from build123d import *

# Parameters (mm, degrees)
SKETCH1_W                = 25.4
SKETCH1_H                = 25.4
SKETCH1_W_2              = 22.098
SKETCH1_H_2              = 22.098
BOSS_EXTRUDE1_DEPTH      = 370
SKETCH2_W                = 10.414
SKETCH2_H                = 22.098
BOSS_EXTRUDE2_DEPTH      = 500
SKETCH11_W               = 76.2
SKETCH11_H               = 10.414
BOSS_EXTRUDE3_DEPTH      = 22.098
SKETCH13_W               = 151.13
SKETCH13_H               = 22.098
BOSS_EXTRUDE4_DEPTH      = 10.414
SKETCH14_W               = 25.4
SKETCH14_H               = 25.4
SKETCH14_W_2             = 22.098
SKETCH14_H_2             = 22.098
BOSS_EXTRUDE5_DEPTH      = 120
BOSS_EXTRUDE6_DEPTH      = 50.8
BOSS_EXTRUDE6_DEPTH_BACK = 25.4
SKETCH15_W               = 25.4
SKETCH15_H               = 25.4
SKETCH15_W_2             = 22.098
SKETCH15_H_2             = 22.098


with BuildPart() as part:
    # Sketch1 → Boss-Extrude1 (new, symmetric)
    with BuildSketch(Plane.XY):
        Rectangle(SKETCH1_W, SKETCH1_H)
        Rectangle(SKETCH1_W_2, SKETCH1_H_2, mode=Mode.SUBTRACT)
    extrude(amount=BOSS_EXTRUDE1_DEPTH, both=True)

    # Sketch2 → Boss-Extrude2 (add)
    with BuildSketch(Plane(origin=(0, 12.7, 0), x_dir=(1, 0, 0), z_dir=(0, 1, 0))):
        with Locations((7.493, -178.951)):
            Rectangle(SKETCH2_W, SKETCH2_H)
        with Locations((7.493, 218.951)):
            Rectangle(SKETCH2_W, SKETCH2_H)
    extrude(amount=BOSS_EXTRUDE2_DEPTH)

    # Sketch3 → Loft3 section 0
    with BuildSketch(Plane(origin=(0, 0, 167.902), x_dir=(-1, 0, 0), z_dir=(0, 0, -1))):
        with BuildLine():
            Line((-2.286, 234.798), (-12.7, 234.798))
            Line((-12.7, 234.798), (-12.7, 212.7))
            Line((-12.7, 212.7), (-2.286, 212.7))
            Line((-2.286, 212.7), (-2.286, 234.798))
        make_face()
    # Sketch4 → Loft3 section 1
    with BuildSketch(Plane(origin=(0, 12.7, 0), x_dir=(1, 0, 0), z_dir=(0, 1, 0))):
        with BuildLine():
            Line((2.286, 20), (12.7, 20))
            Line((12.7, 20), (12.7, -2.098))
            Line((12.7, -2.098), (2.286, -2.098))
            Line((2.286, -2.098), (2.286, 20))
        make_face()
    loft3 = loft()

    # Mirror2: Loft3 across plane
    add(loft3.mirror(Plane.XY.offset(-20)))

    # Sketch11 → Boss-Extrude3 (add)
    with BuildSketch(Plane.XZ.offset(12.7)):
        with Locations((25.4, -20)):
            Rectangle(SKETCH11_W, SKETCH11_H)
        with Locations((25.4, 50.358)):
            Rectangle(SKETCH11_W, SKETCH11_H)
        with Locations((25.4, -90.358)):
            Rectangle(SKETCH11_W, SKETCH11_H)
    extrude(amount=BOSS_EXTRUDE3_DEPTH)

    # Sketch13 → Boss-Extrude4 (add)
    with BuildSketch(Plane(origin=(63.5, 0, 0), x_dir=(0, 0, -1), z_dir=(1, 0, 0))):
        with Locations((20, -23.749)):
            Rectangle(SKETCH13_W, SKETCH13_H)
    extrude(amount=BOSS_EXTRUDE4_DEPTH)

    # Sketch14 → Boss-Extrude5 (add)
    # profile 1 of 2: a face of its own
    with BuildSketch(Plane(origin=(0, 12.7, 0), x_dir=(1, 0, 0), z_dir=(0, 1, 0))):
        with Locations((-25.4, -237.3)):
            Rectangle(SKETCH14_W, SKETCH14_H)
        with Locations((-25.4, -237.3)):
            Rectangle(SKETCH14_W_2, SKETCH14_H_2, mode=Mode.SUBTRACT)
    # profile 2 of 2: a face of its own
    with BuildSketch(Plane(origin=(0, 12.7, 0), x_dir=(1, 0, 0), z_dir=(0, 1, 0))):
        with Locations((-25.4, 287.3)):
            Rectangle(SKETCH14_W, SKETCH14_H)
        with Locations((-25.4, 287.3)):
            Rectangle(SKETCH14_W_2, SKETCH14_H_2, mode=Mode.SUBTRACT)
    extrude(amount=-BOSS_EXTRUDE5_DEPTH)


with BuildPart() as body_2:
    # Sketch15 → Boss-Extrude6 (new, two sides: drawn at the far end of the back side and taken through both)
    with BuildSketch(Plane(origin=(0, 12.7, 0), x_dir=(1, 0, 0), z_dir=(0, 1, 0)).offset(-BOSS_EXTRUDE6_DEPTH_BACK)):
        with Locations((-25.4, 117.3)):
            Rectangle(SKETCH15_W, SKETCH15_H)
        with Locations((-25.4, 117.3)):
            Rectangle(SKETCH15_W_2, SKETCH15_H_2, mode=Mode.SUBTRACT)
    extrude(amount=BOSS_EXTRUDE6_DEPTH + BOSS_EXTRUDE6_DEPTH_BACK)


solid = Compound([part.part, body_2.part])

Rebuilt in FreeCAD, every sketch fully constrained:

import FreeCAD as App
import Part
import Sketcher
from FreeCAD import Vector
Q = App.Units.Quantity

doc = App.newDocument("Part")
body = doc.addObject("PartDesign::Body", "Body")

sketch1 = body.newObject("Sketcher::SketchObject", "Sketch")
sketch1.AttachmentSupport = (doc.getObject("XY_Plane"), [""])
sketch1.MapMode = "FlatFace"
sketch1.addGeometry(Part.LineSegment(Vector(-13, 13, 0), Vector(-13, -13, 0)), False)
sketch1.addGeometry(Part.LineSegment(Vector(-13, -13, 0), Vector(13, -13, 0)), False)
sketch1.addGeometry(Part.LineSegment(Vector(13, -13, 0), Vector(13, 13, 0)), False)
sketch1.addGeometry(Part.LineSegment(Vector(13, 13, 0), Vector(-13, 13, 0)), False)
sketch1.addGeometry(Part.LineSegment(Vector(11, -11, 0), Vector(-11, -11, 0)), False)
sketch1.addGeometry(Part.LineSegment(Vector(-11, -11, 0), Vector(-11, 11, 0)), False)
sketch1.addGeometry(Part.LineSegment(Vector(-11, 11, 0), Vector(11, 11, 0)), False)
sketch1.addGeometry(Part.LineSegment(Vector(11, 11, 0), Vector(11, -11, 0)), False)
sketch1.addConstraint(Sketcher.Constraint("Coincident", 0, 2, 1, 1))
sketch1.addConstraint(Sketcher.Constraint("Coincident", 1, 2, 2, 1))
sketch1.addConstraint(Sketcher.Constraint("Coincident", 2, 2, 3, 1))
sketch1.addConstraint(Sketcher.Constraint("Coincident", 3, 2, 0, 1))
sketch1.addConstraint(Sketcher.Constraint("Coincident", 4, 2, 5, 1))
sketch1.addConstraint(Sketcher.Constraint("Coincident", 5, 2, 6, 1))
sketch1.addConstraint(Sketcher.Constraint("Coincident", 6, 2, 7, 1))
sketch1.addConstraint(Sketcher.Constraint("Coincident", 7, 2, 4, 1))
sketch1.addConstraint(Sketcher.Constraint("Vertical", 0))
sketch1.addConstraint(Sketcher.Constraint("Horizontal", 1))
sketch1.addConstraint(Sketcher.Constraint("Vertical", 2))
sketch1.addConstraint(Sketcher.Constraint("Horizontal", 3))
sketch1.addConstraint(Sketcher.Constraint("Horizontal", 4))
sketch1.addConstraint(Sketcher.Constraint("Vertical", 5))
sketch1.addConstraint(Sketcher.Constraint("Horizontal", 6))
sketch1.addConstraint(Sketcher.Constraint("Vertical", 7))
sketch1.addConstraint(Sketcher.Constraint("Symmetric", 0, 2, 2, 2, -1, 1))
sketch1.addConstraint(Sketcher.Constraint("Symmetric", 4, 2, 6, 2, -1, 1))
sketch1.addConstraint(Sketcher.Constraint("Equal", 3, 0))
sketch1.addConstraint(Sketcher.Constraint("Equal", 6, 5))
sketch1.addConstraint(Sketcher.Constraint("DistanceX", 1, 1, 1, 2, Q("1 in")))
sketch1.addConstraint(Sketcher.Constraint("DistanceX", 4, 2, 4, 1, Q("0.87 in")))
pad1 = body.newObject("PartDesign::Pad", "Pad")
pad1.Profile = sketch1
pad1.Length = 740
pad1.Midplane = True

sketch2 = body.newObject("Sketcher::SketchObject", "Sketch001")
sketch2.AttachmentSupport = (doc.getObject("XZ_Plane"), [""])
sketch2.MapMode = "FlatFace"
sketch2.AttachmentOffset = App.Placement(Vector(0, 0, -0.5 * 25.4), App.Rotation())
sketch2.addGeometry(Part.LineSegment(Vector(2, 168, 0), Vector(2, 190, 0)), False)
sketch2.addGeometry(Part.LineSegment(Vector(2, 190, 0), Vector(13, 190, 0)), False)
sketch2.addGeometry(Part.LineSegment(Vector(13, 190, 0), Vector(13, 168, 0)), False)
sketch2.addGeometry(Part.LineSegment(Vector(13, 168, 0), Vector(2, 168, 0)), False)
sketch2.addGeometry(Part.LineSegment(Vector(2, -230, 0), Vector(2, -208, 0)), False)
sketch2.addGeometry(Part.LineSegment(Vector(2, -208, 0), Vector(13, -208, 0)), False)
sketch2.addGeometry(Part.LineSegment(Vector(13, -208, 0), Vector(13, -230, 0)), False)
sketch2.addGeometry(Part.LineSegment(Vector(13, -230, 0), Vector(2, -230, 0)), False)
sketch2.addConstraint(Sketcher.Constraint("Coincident", 0, 2, 1, 1))
sketch2.addConstraint(Sketcher.Constraint("Coincident", 1, 2, 2, 1))
sketch2.addConstraint(Sketcher.Constraint("Coincident", 2, 2, 3, 1))
sketch2.addConstraint(Sketcher.Constraint("Coincident", 3, 2, 0, 1))
sketch2.addConstraint(Sketcher.Constraint("Coincident", 4, 2, 5, 1))
sketch2.addConstraint(Sketcher.Constraint("Coincident", 5, 2, 6, 1))
sketch2.addConstraint(Sketcher.Constraint("Coincident", 6, 2, 7, 1))
sketch2.addConstraint(Sketcher.Constraint("Coincident", 7, 2, 4, 1))
sketch2.addConstraint(Sketcher.Constraint("Vertical", 0))
sketch2.addConstraint(Sketcher.Constraint("Horizontal", 1))
sketch2.addConstraint(Sketcher.Constraint("Vertical", 2))
sketch2.addConstraint(Sketcher.Constraint("Horizontal", 3))
sketch2.addConstraint(Sketcher.Constraint("Vertical", 4))
sketch2.addConstraint(Sketcher.Constraint("Horizontal", 5))
sketch2.addConstraint(Sketcher.Constraint("Vertical", 6))
sketch2.addConstraint(Sketcher.Constraint("Horizontal", 7))
sketch2.addConstraint(Sketcher.Constraint("Vertical", 3, 2, 4, 2))
sketch2.addConstraint(Sketcher.Constraint("Vertical", 2, 2, 5, 2))
sketch2.addConstraint(Sketcher.Constraint("Equal", 2, 4))
sketch2.addConstraint(Sketcher.Constraint("DistanceX", 1, 1, 1, 2, Q("0.41 in")))
sketch2.addConstraint(Sketcher.Constraint("DistanceY", 0, 1, 0, 2, Q("0.87 in")))
sketch2.addConstraint(Sketcher.Constraint("DistanceX", -1, 1, 1, 2, Q("0.5 in")))
sketch2.addConstraint(Sketcher.Constraint("DistanceY", -1, 1, 0, 2, 190.0))
sketch2.addConstraint(Sketcher.Constraint("DistanceY", 4, 2, -1, 1, 207.902))
pad2 = body.newObject("PartDesign::Pad", "Pad001")
pad2.Profile = sketch2
pad2.Length = 500
pad2.Reversed = True

sketch3 = body.newObject("Sketcher::SketchObject", "Sketch002")
sketch3.AttachmentSupport = (doc.getObject("XY_Plane"), [""])
sketch3.MapMode = "FlatFace"
sketch3.AttachmentOffset = App.Placement(Vector(0, 0, 167.902), App.Rotation())
sketch3.addGeometry(Part.LineSegment(Vector(2, 235, 0), Vector(13, 235, 0)), False)
sketch3.addGeometry(Part.LineSegment(Vector(13, 235, 0), Vector(13, 213, 0)), False)
sketch3.addGeometry(Part.LineSegment(Vector(13, 213, 0), Vector(2, 213, 0)), False)
sketch3.addGeometry(Part.LineSegment(Vector(2, 213, 0), Vector(2, 235, 0)), False)
sketch3.addConstraint(Sketcher.Constraint("Coincident", 0, 2, 1, 1))
sketch3.addConstraint(Sketcher.Constraint("Coincident", 1, 2, 2, 1))
sketch3.addConstraint(Sketcher.Constraint("Coincident", 2, 2, 3, 1))
sketch3.addConstraint(Sketcher.Constraint("Coincident", 3, 2, 0, 1))
sketch3.addConstraint(Sketcher.Constraint("Horizontal", 0))
sketch3.addConstraint(Sketcher.Constraint("Vertical", 1))
sketch3.addConstraint(Sketcher.Constraint("Horizontal", 2))
sketch3.addConstraint(Sketcher.Constraint("Vertical", 3))
sketch3.addConstraint(Sketcher.Constraint("DistanceX", 0, 1, 0, 2, Q("0.41 in")))
sketch3.addConstraint(Sketcher.Constraint("DistanceY", 1, 2, 1, 1, Q("0.87 in")))
sketch3.addConstraint(Sketcher.Constraint("DistanceX", -1, 1, 0, 2, Q("0.5 in")))
sketch3.addConstraint(Sketcher.Constraint("DistanceY", -1, 1, 0, 2, 234.798))

sketch4 = body.newObject("Sketcher::SketchObject", "Sketch003")
sketch4.AttachmentSupport = (doc.getObject("XZ_Plane"), [""])
sketch4.MapMode = "FlatFace"
sketch4.AttachmentOffset = App.Placement(Vector(0, 0, -0.5 * 25.4), App.Rotation())
sketch4.addGeometry(Part.LineSegment(Vector(13, -20, 0), Vector(2, -20, 0)), False)
sketch4.addGeometry(Part.LineSegment(Vector(2, -20, 0), Vector(2, 2, 0)), False)
sketch4.addGeometry(Part.LineSegment(Vector(2, 2, 0), Vector(13, 2, 0)), False)
sketch4.addGeometry(Part.LineSegment(Vector(13, 2, 0), Vector(13, -20, 0)), False)
sketch4.addConstraint(Sketcher.Constraint("Coincident", 0, 2, 1, 1))
sketch4.addConstraint(Sketcher.Constraint("Coincident", 1, 2, 2, 1))
sketch4.addConstraint(Sketcher.Constraint("Coincident", 2, 2, 3, 1))
sketch4.addConstraint(Sketcher.Constraint("Coincident", 3, 2, 0, 1))
sketch4.addConstraint(Sketcher.Constraint("Horizontal", 0))
sketch4.addConstraint(Sketcher.Constraint("Vertical", 1))
sketch4.addConstraint(Sketcher.Constraint("Horizontal", 2))
sketch4.addConstraint(Sketcher.Constraint("Vertical", 3))
sketch4.addConstraint(Sketcher.Constraint("DistanceX", 0, 2, 0, 1, Q("0.41 in")))
sketch4.addConstraint(Sketcher.Constraint("DistanceY", 1, 1, 1, 2, Q("0.87 in")))
sketch4.addConstraint(Sketcher.Constraint("DistanceX", -1, 1, 2, 2, Q("0.5 in")))
sketch4.addConstraint(Sketcher.Constraint("DistanceY", 0, 2, -1, 1, 20.0))

additiveloft = body.newObject("PartDesign::AdditiveLoft", "AdditiveLoft")
additiveloft.Profile = sketch3
additiveloft.Sections = [sketch4]
doc.recompute()

datumplane = body.newObject("PartDesign::Plane", "DatumPlane")
datumplane.AttachmentSupport = (doc.getObject("XY_Plane"), [""])
datumplane.MapMode = "FlatFace"
datumplane.AttachmentOffset = App.Placement(Vector(0, 0, -20), App.Rotation())
mirrored = body.newObject("PartDesign::Mirrored", "Mirrored")
mirrored.Originals = [additiveloft]
mirrored.MirrorPlane = (datumplane, [""])
body.Tip = mirrored

sketch5 = body.newObject("Sketcher::SketchObject", "Sketch004")
sketch5.AttachmentSupport = (doc.getObject("XZ_Plane"), [""])
sketch5.MapMode = "FlatFace"
sketch5.AttachmentOffset = App.Placement(Vector(0, 0, 0.5 * 25.4), App.Rotation())
sketch5.addGeometry(Part.LineSegment(Vector(-13, -15, 0), Vector(-13, -25, 0)), False)
sketch5.addGeometry(Part.LineSegment(Vector(-13, -25, 0), Vector(64, -25, 0)), False)
sketch5.addGeometry(Part.LineSegment(Vector(64, -25, 0), Vector(64, -15, 0)), False)
sketch5.addGeometry(Part.LineSegment(Vector(64, -15, 0), Vector(-13, -15, 0)), False)
sketch5.addGeometry(Part.LineSegment(Vector(-13, 56, 0), Vector(-13, 45, 0)), False)
sketch5.addGeometry(Part.LineSegment(Vector(-13, 45, 0), Vector(64, 45, 0)), False)
sketch5.addGeometry(Part.LineSegment(Vector(64, 45, 0), Vector(64, 56, 0)), False)
sketch5.addGeometry(Part.LineSegment(Vector(64, 56, 0), Vector(-13, 56, 0)), False)
sketch5.addGeometry(Part.LineSegment(Vector(-13, -85, 0), Vector(-13, -96, 0)), False)
sketch5.addGeometry(Part.LineSegment(Vector(-13, -96, 0), Vector(64, -96, 0)), False)
sketch5.addGeometry(Part.LineSegment(Vector(64, -96, 0), Vector(64, -85, 0)), False)
sketch5.addGeometry(Part.LineSegment(Vector(64, -85, 0), Vector(-13, -85, 0)), False)
sketch5.addConstraint(Sketcher.Constraint("Coincident", 0, 2, 1, 1))
sketch5.addConstraint(Sketcher.Constraint("Coincident", 1, 2, 2, 1))
sketch5.addConstraint(Sketcher.Constraint("Coincident", 2, 2, 3, 1))
sketch5.addConstraint(Sketcher.Constraint("Coincident", 3, 2, 0, 1))
sketch5.addConstraint(Sketcher.Constraint("Coincident", 4, 2, 5, 1))
sketch5.addConstraint(Sketcher.Constraint("Coincident", 5, 2, 6, 1))
sketch5.addConstraint(Sketcher.Constraint("Coincident", 6, 2, 7, 1))
sketch5.addConstraint(Sketcher.Constraint("Coincident", 7, 2, 4, 1))
sketch5.addConstraint(Sketcher.Constraint("Coincident", 8, 2, 9, 1))
sketch5.addConstraint(Sketcher.Constraint("Coincident", 9, 2, 10, 1))
sketch5.addConstraint(Sketcher.Constraint("Coincident", 10, 2, 11, 1))
sketch5.addConstraint(Sketcher.Constraint("Coincident", 11, 2, 8, 1))
sketch5.addConstraint(Sketcher.Constraint("Vertical", 0))
sketch5.addConstraint(Sketcher.Constraint("Horizontal", 1))
sketch5.addConstraint(Sketcher.Constraint("Vertical", 2))
sketch5.addConstraint(Sketcher.Constraint("Horizontal", 3))
sketch5.addConstraint(Sketcher.Constraint("Vertical", 4))
sketch5.addConstraint(Sketcher.Constraint("Horizontal", 5))
sketch5.addConstraint(Sketcher.Constraint("Vertical", 6))
sketch5.addConstraint(Sketcher.Constraint("Horizontal", 7))
sketch5.addConstraint(Sketcher.Constraint("Vertical", 8))
sketch5.addConstraint(Sketcher.Constraint("Horizontal", 9))
sketch5.addConstraint(Sketcher.Constraint("Vertical", 10))
sketch5.addConstraint(Sketcher.Constraint("Horizontal", 11))
sketch5.addConstraint(Sketcher.Constraint("Vertical", 3, 2, 4, 2))
sketch5.addConstraint(Sketcher.Constraint("Vertical", 2, 2, 5, 2))
sketch5.addConstraint(Sketcher.Constraint("Vertical", 7, 2, 8, 2))
sketch5.addConstraint(Sketcher.Constraint("Vertical", 6, 2, 9, 2))
sketch5.addConstraint(Sketcher.Constraint("Equal", 2, 4))
sketch5.addConstraint(Sketcher.Constraint("Equal", 6, 8))
sketch5.addConstraint(Sketcher.Constraint("DistanceX", 1, 1, 1, 2, Q("3 in")))
sketch5.addConstraint(Sketcher.Constraint("DistanceY", 0, 2, 0, 1, Q("0.41 in")))
sketch5.addConstraint(Sketcher.Constraint("DistanceX", 0, 2, -1, 1, Q("0.5 in")))
sketch5.addConstraint(Sketcher.Constraint("DistanceY", 3, 2, 4, 2, Q("2.36 in")))
sketch5.addConstraint(Sketcher.Constraint("DistanceY", 8, 2, 0, 2, Q("2.77 in")))
sketch5.addConstraint(Sketcher.Constraint("DistanceY", 0, 2, -1, 1, 25.207))
pad3 = body.newObject("PartDesign::Pad", "Pad002")
pad3.Profile = sketch5
pad3.Length = Q("0.87 in")

sketch6 = body.newObject("Sketcher::SketchObject", "Sketch005")
sketch6.AttachmentSupport = (doc.getObject("YZ_Plane"), [""])
sketch6.MapMode = "FlatFace"
sketch6.AttachmentOffset = App.Placement(Vector(0, 0, 2.5 * 25.4), App.Rotation())
sketch6.addGeometry(Part.LineSegment(Vector(-13, 56, 0), Vector(-35, 56, 0)), False)
sketch6.addGeometry(Part.LineSegment(Vector(-35, 56, 0), Vector(-35, -96, 0)), False)
sketch6.addGeometry(Part.LineSegment(Vector(-35, -96, 0), Vector(-13, -96, 0)), False)
sketch6.addGeometry(Part.LineSegment(Vector(-13, -96, 0), Vector(-13, 56, 0)), False)
sketch6.addConstraint(Sketcher.Constraint("Coincident", 0, 2, 1, 1))
sketch6.addConstraint(Sketcher.Constraint("Coincident", 1, 2, 2, 1))
sketch6.addConstraint(Sketcher.Constraint("Coincident", 2, 2, 3, 1))
sketch6.addConstraint(Sketcher.Constraint("Coincident", 3, 2, 0, 1))
sketch6.addConstraint(Sketcher.Constraint("Horizontal", 0))
sketch6.addConstraint(Sketcher.Constraint("Vertical", 1))
sketch6.addConstraint(Sketcher.Constraint("Horizontal", 2))
sketch6.addConstraint(Sketcher.Constraint("Vertical", 3))
sketch6.addConstraint(Sketcher.Constraint("DistanceX", 0, 2, 0, 1, Q("0.87 in")))
sketch6.addConstraint(Sketcher.Constraint("DistanceY", 1, 2, 1, 1, Q("5.95 in")))
sketch6.addConstraint(Sketcher.Constraint("DistanceX", 2, 2, -1, 1, Q("0.5 in")))
sketch6.addConstraint(Sketcher.Constraint("DistanceY", -1, 1, 0, 2, 55.565))
pad4 = body.newObject("PartDesign::Pad", "Pad003")
pad4.Profile = sketch6
pad4.Length = Q("0.41 in")

sketch7 = body.newObject("Sketcher::SketchObject", "Sketch006")
sketch7.AttachmentSupport = (doc.getObject("XZ_Plane"), [""])
sketch7.MapMode = "FlatFace"
sketch7.AttachmentOffset = App.Placement(Vector(0, 0, -0.5 * 25.4), App.Rotation())
sketch7.addGeometry(Part.LineSegment(Vector(-38, 225, 0), Vector(-38, 250, 0)), False)
sketch7.addGeometry(Part.LineSegment(Vector(-38, 250, 0), Vector(-13, 250, 0)), False)
sketch7.addGeometry(Part.LineSegment(Vector(-13, 250, 0), Vector(-13, 225, 0)), False)
sketch7.addGeometry(Part.LineSegment(Vector(-13, 225, 0), Vector(-38, 225, 0)), False)
sketch7.addGeometry(Part.LineSegment(Vector(-14, 248, 0), Vector(-36, 248, 0)), False)
sketch7.addGeometry(Part.LineSegment(Vector(-36, 248, 0), Vector(-36, 226, 0)), False)
sketch7.addGeometry(Part.LineSegment(Vector(-36, 226, 0), Vector(-14, 226, 0)), False)
sketch7.addGeometry(Part.LineSegment(Vector(-14, 226, 0), Vector(-14, 248, 0)), False)
sketch7.addGeometry(Part.LineSegment(Vector(-38, -300, 0), Vector(-38, -275, 0)), False)
sketch7.addGeometry(Part.LineSegment(Vector(-38, -275, 0), Vector(-13, -275, 0)), False)
sketch7.addGeometry(Part.LineSegment(Vector(-13, -275, 0), Vector(-13, -300, 0)), False)
sketch7.addGeometry(Part.LineSegment(Vector(-13, -300, 0), Vector(-38, -300, 0)), False)
sketch7.addGeometry(Part.LineSegment(Vector(-14, -276, 0), Vector(-36, -276, 0)), False)
sketch7.addGeometry(Part.LineSegment(Vector(-36, -276, 0), Vector(-36, -298, 0)), False)
sketch7.addGeometry(Part.LineSegment(Vector(-36, -298, 0), Vector(-14, -298, 0)), False)
sketch7.addGeometry(Part.LineSegment(Vector(-14, -298, 0), Vector(-14, -276, 0)), False)
sketch7.addConstraint(Sketcher.Constraint("Coincident", 0, 2, 1, 1))
sketch7.addConstraint(Sketcher.Constraint("Coincident", 1, 2, 2, 1))
sketch7.addConstraint(Sketcher.Constraint("Coincident", 2, 2, 3, 1))
sketch7.addConstraint(Sketcher.Constraint("Coincident", 3, 2, 0, 1))
sketch7.addConstraint(Sketcher.Constraint("Coincident", 4, 2, 5, 1))
sketch7.addConstraint(Sketcher.Constraint("Coincident", 5, 2, 6, 1))
sketch7.addConstraint(Sketcher.Constraint("Coincident", 6, 2, 7, 1))
sketch7.addConstraint(Sketcher.Constraint("Coincident", 7, 2, 4, 1))
sketch7.addConstraint(Sketcher.Constraint("Coincident", 8, 2, 9, 1))
sketch7.addConstraint(Sketcher.Constraint("Coincident", 9, 2, 10, 1))
sketch7.addConstraint(Sketcher.Constraint("Coincident", 10, 2, 11, 1))
sketch7.addConstraint(Sketcher.Constraint("Coincident", 11, 2, 8, 1))
sketch7.addConstraint(Sketcher.Constraint("Coincident", 12, 2, 13, 1))
sketch7.addConstraint(Sketcher.Constraint("Coincident", 13, 2, 14, 1))
sketch7.addConstraint(Sketcher.Constraint("Coincident", 14, 2, 15, 1))
sketch7.addConstraint(Sketcher.Constraint("Coincident", 15, 2, 12, 1))
sketch7.addConstraint(Sketcher.Constraint("Vertical", 0))
sketch7.addConstraint(Sketcher.Constraint("Horizontal", 1))
sketch7.addConstraint(Sketcher.Constraint("Vertical", 2))
sketch7.addConstraint(Sketcher.Constraint("Horizontal", 3))
sketch7.addConstraint(Sketcher.Constraint("Horizontal", 4))
sketch7.addConstraint(Sketcher.Constraint("Vertical", 5))
sketch7.addConstraint(Sketcher.Constraint("Horizontal", 6))
sketch7.addConstraint(Sketcher.Constraint("Vertical", 7))
sketch7.addConstraint(Sketcher.Constraint("Vertical", 8))
sketch7.addConstraint(Sketcher.Constraint("Horizontal", 9))
sketch7.addConstraint(Sketcher.Constraint("Vertical", 10))
sketch7.addConstraint(Sketcher.Constraint("Horizontal", 11))
sketch7.addConstraint(Sketcher.Constraint("Horizontal", 12))
sketch7.addConstraint(Sketcher.Constraint("Vertical", 13))
sketch7.addConstraint(Sketcher.Constraint("Horizontal", 14))
sketch7.addConstraint(Sketcher.Constraint("Vertical", 15))
sketch7.addConstraint(Sketcher.Constraint("Vertical", 3, 2, 8, 2))
sketch7.addConstraint(Sketcher.Constraint("Vertical", 2, 2, 9, 2))
sketch7.addConstraint(Sketcher.Constraint("Vertical", 5, 2, 12, 2))
sketch7.addConstraint(Sketcher.Constraint("Vertical", 7, 2, 14, 2))
sketch7.addConstraint(Sketcher.Constraint("Equal", 11, 0))
sketch7.addConstraint(Sketcher.Constraint("Equal", 14, 5))
sketch7.addConstraint(Sketcher.Constraint("Equal", 2, 8))
sketch7.addConstraint(Sketcher.Constraint("Equal", 7, 13))
sketch7.addConstraint(Sketcher.Constraint("DistanceX", 1, 1, 1, 2, Q("1 in")))
sketch7.addConstraint(Sketcher.Constraint("DistanceX", 4, 2, 4, 1, Q("0.87 in")))
sketch7.addConstraint(Sketcher.Constraint("DistanceX", 0, 2, -1, 1, Q("1.5 in")))
sketch7.addConstraint(Sketcher.Constraint("DistanceX", 4, 2, -1, 1, Q("1.435 in")))
sketch7.addConstraint(Sketcher.Constraint("DistanceY", 4, 2, 0, 2, Q("0.065 in")))
sketch7.addConstraint(Sketcher.Constraint("DistanceY", 12, 2, 8, 2, Q("0.065 in")))
sketch7.addConstraint(Sketcher.Constraint("DistanceY", -1, 1, 0, 2, 250.0))
sketch7.addConstraint(Sketcher.Constraint("DistanceY", 8, 2, -1, 1, 274.6))
pad5 = body.newObject("PartDesign::Pad", "Pad004")
pad5.Profile = sketch7
pad5.Length = 120
body2 = doc.addObject("PartDesign::Body", "Body001")

sketch8 = body2.newObject("Sketcher::SketchObject", "Sketch007")
sketch8.AttachmentSupport = (doc.getObject("XZ_Plane001"), [""])
sketch8.MapMode = "FlatFace"
sketch8.AttachmentOffset = App.Placement(Vector(0, 0, -0.5 * 25.4), App.Rotation())
sketch8.addGeometry(Part.LineSegment(Vector(-38, -130, 0), Vector(-38, -105, 0)), False)
sketch8.addGeometry(Part.LineSegment(Vector(-38, -105, 0), Vector(-13, -105, 0)), False)
sketch8.addGeometry(Part.LineSegment(Vector(-13, -105, 0), Vector(-13, -130, 0)), False)
sketch8.addGeometry(Part.LineSegment(Vector(-13, -130, 0), Vector(-38, -130, 0)), False)
sketch8.addGeometry(Part.LineSegment(Vector(-14, -106, 0), Vector(-36, -106, 0)), False)
sketch8.addGeometry(Part.LineSegment(Vector(-36, -106, 0), Vector(-36, -128, 0)), False)
sketch8.addGeometry(Part.LineSegment(Vector(-36, -128, 0), Vector(-14, -128, 0)), False)
sketch8.addGeometry(Part.LineSegment(Vector(-14, -128, 0), Vector(-14, -106, 0)), False)
sketch8.addConstraint(Sketcher.Constraint("Coincident", 0, 2, 1, 1))
sketch8.addConstraint(Sketcher.Constraint("Coincident", 1, 2, 2, 1))
sketch8.addConstraint(Sketcher.Constraint("Coincident", 2, 2, 3, 1))
sketch8.addConstraint(Sketcher.Constraint("Coincident", 3, 2, 0, 1))
sketch8.addConstraint(Sketcher.Constraint("Coincident", 4, 2, 5, 1))
sketch8.addConstraint(Sketcher.Constraint("Coincident", 5, 2, 6, 1))
sketch8.addConstraint(Sketcher.Constraint("Coincident", 6, 2, 7, 1))
sketch8.addConstraint(Sketcher.Constraint("Coincident", 7, 2, 4, 1))
sketch8.addConstraint(Sketcher.Constraint("Vertical", 0))
sketch8.addConstraint(Sketcher.Constraint("Horizontal", 1))
sketch8.addConstraint(Sketcher.Constraint("Vertical", 2))
sketch8.addConstraint(Sketcher.Constraint("Horizontal", 3))
sketch8.addConstraint(Sketcher.Constraint("Horizontal", 4))
sketch8.addConstraint(Sketcher.Constraint("Vertical", 5))
sketch8.addConstraint(Sketcher.Constraint("Horizontal", 6))
sketch8.addConstraint(Sketcher.Constraint("Vertical", 7))
sketch8.addConstraint(Sketcher.Constraint("Equal", 3, 0))
sketch8.addConstraint(Sketcher.Constraint("Equal", 6, 5))
sketch8.addConstraint(Sketcher.Constraint("DistanceX", 1, 1, 1, 2, Q("1 in")))
sketch8.addConstraint(Sketcher.Constraint("DistanceX", 4, 2, 4, 1, Q("0.87 in")))
sketch8.addConstraint(Sketcher.Constraint("DistanceX", 0, 2, -1, 1, Q("1.5 in")))
sketch8.addConstraint(Sketcher.Constraint("DistanceX", 4, 2, -1, 1, Q("1.435 in")))
sketch8.addConstraint(Sketcher.Constraint("DistanceY", 4, 2, 0, 2, Q("0.065 in")))
sketch8.addConstraint(Sketcher.Constraint("DistanceY", 0, 2, -1, 1, 104.6))
pad6 = body2.newObject("PartDesign::Pad", "Pad005")
pad6.Profile = sketch8
pad6.Type = "TwoLengths"
pad6.Length = Q("2 in")
pad6.Length2 = Q("1 in")
pad6.Reversed = True

doc.recompute()
